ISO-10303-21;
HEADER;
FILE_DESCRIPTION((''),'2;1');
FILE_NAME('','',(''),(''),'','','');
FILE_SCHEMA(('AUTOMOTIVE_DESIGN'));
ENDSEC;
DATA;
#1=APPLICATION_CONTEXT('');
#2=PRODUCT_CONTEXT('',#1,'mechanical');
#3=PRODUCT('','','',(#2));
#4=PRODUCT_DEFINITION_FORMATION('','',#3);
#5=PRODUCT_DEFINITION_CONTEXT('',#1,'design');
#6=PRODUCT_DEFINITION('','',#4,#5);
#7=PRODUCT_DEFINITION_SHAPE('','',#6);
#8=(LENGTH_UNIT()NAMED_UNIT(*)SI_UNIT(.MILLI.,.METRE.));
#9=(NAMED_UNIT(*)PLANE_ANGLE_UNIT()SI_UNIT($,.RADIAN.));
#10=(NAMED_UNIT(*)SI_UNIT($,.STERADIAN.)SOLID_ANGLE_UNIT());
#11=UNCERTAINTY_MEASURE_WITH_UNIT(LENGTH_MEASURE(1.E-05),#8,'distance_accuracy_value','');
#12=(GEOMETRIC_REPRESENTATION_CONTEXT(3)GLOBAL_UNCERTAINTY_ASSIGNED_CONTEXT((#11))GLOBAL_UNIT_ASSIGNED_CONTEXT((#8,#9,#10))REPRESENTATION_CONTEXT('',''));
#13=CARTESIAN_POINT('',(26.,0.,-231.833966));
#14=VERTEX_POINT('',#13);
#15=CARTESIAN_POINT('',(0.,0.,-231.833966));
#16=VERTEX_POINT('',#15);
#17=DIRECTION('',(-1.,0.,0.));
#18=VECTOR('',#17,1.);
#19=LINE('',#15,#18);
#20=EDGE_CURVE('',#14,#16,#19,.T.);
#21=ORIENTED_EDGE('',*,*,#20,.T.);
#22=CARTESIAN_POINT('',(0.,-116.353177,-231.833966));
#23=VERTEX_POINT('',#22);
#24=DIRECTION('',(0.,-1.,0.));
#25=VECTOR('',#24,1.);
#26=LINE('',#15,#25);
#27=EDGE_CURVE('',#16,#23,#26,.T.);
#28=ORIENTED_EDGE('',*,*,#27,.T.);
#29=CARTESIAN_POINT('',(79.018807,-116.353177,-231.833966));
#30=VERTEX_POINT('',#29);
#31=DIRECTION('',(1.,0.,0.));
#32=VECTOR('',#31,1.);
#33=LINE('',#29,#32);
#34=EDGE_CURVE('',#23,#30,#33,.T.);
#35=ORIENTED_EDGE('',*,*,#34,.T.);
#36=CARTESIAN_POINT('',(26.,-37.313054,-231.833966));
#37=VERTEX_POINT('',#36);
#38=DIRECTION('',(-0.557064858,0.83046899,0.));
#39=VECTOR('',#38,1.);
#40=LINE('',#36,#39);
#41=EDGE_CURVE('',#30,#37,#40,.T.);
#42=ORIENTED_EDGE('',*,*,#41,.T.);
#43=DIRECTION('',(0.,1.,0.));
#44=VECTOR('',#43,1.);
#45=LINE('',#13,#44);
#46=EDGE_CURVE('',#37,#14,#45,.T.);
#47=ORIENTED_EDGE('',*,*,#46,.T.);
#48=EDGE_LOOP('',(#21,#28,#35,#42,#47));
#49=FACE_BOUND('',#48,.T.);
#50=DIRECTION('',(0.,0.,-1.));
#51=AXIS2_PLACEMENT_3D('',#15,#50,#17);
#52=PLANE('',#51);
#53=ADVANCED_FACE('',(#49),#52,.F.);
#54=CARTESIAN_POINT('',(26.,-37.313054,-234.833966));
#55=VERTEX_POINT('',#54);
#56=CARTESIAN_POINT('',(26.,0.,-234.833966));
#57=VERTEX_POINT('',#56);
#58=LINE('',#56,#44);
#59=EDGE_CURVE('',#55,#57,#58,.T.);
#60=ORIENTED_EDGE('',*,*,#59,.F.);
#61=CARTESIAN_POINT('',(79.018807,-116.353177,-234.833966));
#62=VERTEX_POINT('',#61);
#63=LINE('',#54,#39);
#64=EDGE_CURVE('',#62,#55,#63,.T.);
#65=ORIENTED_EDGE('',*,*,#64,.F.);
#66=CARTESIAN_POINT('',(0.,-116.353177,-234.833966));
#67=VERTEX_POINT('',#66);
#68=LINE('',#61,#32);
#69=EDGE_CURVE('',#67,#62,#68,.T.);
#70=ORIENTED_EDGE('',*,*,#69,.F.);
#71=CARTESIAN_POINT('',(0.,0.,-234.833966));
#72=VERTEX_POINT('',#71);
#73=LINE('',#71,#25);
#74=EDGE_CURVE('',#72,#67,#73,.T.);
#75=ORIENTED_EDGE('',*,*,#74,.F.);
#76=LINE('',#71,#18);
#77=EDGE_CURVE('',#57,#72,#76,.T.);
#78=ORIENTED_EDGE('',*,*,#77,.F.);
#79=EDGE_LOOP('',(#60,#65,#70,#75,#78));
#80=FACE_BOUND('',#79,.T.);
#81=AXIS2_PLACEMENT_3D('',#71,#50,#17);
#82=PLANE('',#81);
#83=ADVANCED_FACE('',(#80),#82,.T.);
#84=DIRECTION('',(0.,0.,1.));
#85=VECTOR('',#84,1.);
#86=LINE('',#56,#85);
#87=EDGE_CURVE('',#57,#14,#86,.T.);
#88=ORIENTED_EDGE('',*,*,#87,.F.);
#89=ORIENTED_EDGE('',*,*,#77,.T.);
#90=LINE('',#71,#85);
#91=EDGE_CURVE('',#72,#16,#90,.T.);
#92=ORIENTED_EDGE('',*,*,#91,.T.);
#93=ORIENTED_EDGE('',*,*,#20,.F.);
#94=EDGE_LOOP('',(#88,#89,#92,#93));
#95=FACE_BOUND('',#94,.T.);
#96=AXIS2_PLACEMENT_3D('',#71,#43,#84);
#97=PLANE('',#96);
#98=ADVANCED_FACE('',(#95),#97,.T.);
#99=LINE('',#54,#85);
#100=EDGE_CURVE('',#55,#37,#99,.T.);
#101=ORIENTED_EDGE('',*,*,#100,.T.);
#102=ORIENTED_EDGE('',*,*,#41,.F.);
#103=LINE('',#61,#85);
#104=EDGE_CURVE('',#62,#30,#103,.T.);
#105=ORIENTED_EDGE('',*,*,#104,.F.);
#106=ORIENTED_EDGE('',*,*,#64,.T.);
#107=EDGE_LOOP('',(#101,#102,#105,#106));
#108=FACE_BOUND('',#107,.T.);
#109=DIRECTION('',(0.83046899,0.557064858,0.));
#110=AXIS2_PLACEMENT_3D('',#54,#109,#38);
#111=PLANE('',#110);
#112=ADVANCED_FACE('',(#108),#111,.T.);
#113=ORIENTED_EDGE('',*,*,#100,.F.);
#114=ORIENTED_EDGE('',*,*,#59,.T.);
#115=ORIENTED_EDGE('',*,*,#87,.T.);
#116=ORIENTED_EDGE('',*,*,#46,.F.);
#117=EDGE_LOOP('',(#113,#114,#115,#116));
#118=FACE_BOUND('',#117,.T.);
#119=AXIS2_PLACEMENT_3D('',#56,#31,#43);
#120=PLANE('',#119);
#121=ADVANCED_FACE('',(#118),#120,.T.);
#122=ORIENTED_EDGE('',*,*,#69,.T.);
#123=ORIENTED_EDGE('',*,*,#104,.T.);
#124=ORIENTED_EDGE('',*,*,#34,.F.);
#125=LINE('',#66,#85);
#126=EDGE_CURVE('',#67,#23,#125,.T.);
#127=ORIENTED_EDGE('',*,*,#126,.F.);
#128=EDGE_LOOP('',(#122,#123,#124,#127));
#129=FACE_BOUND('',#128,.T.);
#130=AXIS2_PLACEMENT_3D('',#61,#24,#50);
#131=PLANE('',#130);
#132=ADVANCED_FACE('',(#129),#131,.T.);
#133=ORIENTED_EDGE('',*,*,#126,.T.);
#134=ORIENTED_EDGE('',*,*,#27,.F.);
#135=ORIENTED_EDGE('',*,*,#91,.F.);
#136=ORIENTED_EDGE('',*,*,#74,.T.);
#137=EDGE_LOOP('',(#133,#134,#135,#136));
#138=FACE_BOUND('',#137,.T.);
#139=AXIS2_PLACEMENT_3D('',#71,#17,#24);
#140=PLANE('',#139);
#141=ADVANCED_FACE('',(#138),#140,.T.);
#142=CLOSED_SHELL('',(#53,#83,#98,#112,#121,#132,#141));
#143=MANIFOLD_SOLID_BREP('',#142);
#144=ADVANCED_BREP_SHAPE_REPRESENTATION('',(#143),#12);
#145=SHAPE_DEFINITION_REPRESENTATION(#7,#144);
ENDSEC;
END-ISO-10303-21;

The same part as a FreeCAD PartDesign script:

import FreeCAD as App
import Part
import Sketcher
Q = App.Units.Quantity

doc = App.newDocument("Part")
body = doc.addObject("PartDesign::Body", "Body")

# Sketch on XY plane
sketch1 = body.newObject("Sketcher::SketchObject", "Sketch")
sketch1.AttachmentSupport = (doc.getObject("XY_Plane"), [""])
sketch1.MapMode = "FlatFace"
sketch1.AttachmentOffset = App.Placement(App.Vector(0, 0, -231.833966), App.Rotation())
sketch1.addGeometry(Part.LineSegment(App.Vector(0, 0, 0), App.Vector(0, -116.353177, 0)), False)
sketch1.addGeometry(Part.LineSegment(App.Vector(0, -116.353177, 0), App.Vector(79.018807, -116.353177, 0)), False)
sketch1.addGeometry(Part.LineSegment(App.Vector(79.018807, -116.353177, 0), App.Vector(26, -37.313054, 0)), False)
sketch1.addGeometry(Part.LineSegment(App.Vector(26, -37.313054, 0), App.Vector(26, 0, 0)), False)
sketch1.addGeometry(Part.LineSegment(App.Vector(26, 0, 0), App.Vector(0, 0, 0)), False)
sketch1.addConstraint(Sketcher.Constraint("Coincident", 0, 2, 1, 1))
sketch1.addConstraint(Sketcher.Constraint("Coincident", 1, 2, 2, 1))
sketch1.addConstraint(Sketcher.Constraint("Coincident", 2, 2, 3, 1))
sketch1.addConstraint(Sketcher.Constraint("Coincident", 3, 2, 4, 1))
sketch1.addConstraint(Sketcher.Constraint("Coincident", 4, 2, 0, 1))
sketch1.addConstraint(Sketcher.Constraint("Vertical", 0))
sketch1.addConstraint(Sketcher.Constraint("Horizontal", 1))
sketch1.addConstraint(Sketcher.Constraint("Vertical", 3))
sketch1.addConstraint(Sketcher.Constraint("Horizontal", 4))
sketch1.addConstraint(Sketcher.Constraint("Coincident", 4, 2, -1, 1))
sketch1.addConstraint(Sketcher.Constraint("DistanceX", 4, 2, 4, 1, Q("26 mm")))
sketch1.addConstraint(Sketcher.Constraint("DistanceX", 1, 1, 1, 2, Q("79.018807 mm")))
sketch1.addConstraint(Sketcher.Constraint("DistanceY", 0, 2, 0, 1, Q("116.353177 mm")))
sketch1.addConstraint(Sketcher.Constraint("DistanceY", 3, 1, 3, 2, Q("37.313054 mm")))
pad1 = body.newObject("PartDesign::Pad", "Pad")
pad1.Profile = sketch1
pad1.Length = 3
pad1.Reversed = True

doc.recompute()
